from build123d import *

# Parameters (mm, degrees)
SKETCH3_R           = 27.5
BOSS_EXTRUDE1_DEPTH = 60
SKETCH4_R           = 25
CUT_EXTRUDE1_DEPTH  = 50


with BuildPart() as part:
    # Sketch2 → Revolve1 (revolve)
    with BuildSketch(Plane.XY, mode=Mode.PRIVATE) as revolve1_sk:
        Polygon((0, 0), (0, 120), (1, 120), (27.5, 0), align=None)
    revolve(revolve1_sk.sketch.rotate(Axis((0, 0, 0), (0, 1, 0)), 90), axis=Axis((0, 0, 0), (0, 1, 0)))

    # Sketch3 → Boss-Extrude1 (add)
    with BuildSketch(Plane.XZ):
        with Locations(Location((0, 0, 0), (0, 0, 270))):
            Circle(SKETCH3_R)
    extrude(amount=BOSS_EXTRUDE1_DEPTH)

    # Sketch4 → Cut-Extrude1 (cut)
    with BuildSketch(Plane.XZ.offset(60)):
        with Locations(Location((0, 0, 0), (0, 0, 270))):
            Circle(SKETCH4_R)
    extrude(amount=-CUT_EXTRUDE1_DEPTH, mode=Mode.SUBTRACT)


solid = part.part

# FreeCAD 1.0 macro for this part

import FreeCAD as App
import Part
import Sketcher
from FreeCAD import Vector


def add_polygon(sketch, points):
    """Adds a closed chain of lines whose ends are joined by coincident constraints."""
    first, n = sketch.GeometryCount, len(points)
    for a, b in zip(points, points[1:] + points[:1]):
        sketch.addGeometry(Part.LineSegment(App.Vector(*a, 0), App.Vector(*b, 0)), False)
    for i in range(n):
        sketch.addConstraint(Sketcher.Constraint("Coincident", first + i, 2, first + (i + 1) % n, 1))

doc = App.newDocument("Part")
params = doc.addObject("Spreadsheet::Sheet", "Params")
for row, (alias, value) in enumerate([
    ("sketch1_width", "1 mm"),
    ("sketch1_height", "120 mm"),
    ("sketch1_width2", "27.5 mm"),
    ("revolution_angle", "360 deg"),
    ("sketch2_diameter", "55 mm"),
    ("pad1_length", "60 mm"),
    ("sketch3_diameter", "50 mm"),
    ("pocket1_length", "50 mm"),
], start=1):
    params.set(f"A{row}", alias)
    params.set(f"B{row}", "=" + value)
    params.setAlias(f"B{row}", alias)

body = doc.addObject("PartDesign::Body", "Body")

# Sketch on XY plane
sketch1 = body.newObject("Sketcher::SketchObject", "Sketch")
sketch1.AttachmentSupport = (doc.getObject("XY_Plane"), [""])
sketch1.MapMode = "FlatFace"
add_polygon(sketch1, [(0, 120), (0, 0), (27.5, 0), (1, 120)])  # lines 0-3
sketch1.addConstraint([
    Sketcher.Constraint("Vertical", 0),
    Sketcher.Constraint("Horizontal", 1),
    Sketcher.Constraint("Horizontal", 3),
    Sketcher.Constraint("Coincident", 0, 2, -1, 1),
    Sketcher.Constraint("DistanceX", 3, 2, 3, 1, 1.0),
    Sketcher.Constraint("DistanceY", 0, 2, 0, 1, 120.0),
    Sketcher.Constraint("DistanceX", 1, 1, 1, 2, 27.5),
])
sketch1.setExpression("Constraints[8]", "Params.sketch1_width")
sketch1.setExpression("Constraints[9]", "Params.sketch1_height")
sketch1.setExpression("Constraints[10]", "Params.sketch1_width2")
revolution = body.newObject("PartDesign::Revolution", "Revolution")
revolution.Profile = sketch1
revolution.ReferenceAxis = (sketch1, ["V_Axis"])
revolution.setExpression("Angle", "Params.revolution_angle")

# Sketch on XZ plane
sketch2 = body.newObject("Sketcher::SketchObject", "Sketch001")
sketch2.AttachmentSupport = (doc.getObject("XZ_Plane"), [""])
sketch2.MapMode = "FlatFace"
sketch2.addGeometry(Part.Circle(Vector(0, 0, 0), Vector(0, 0, 1), 28), False)
sketch2.addConstraint([
    Sketcher.Constraint("Coincident", 0, 3, -1, 1),
    Sketcher.Constraint("Diameter", 0, 55.0),
])
sketch2.setExpression("Constraints[1]", "Params.sketch2_diameter")
pad1 = body.newObject("PartDesign::Pad", "Pad")
pad1.Profile = sketch2
pad1.setExpression("Length", "Params.pad1_length")

# Sketch on XZ plane
sketch3 = body.newObject("Sketcher::SketchObject", "Sketch002")
sketch3.AttachmentSupport = (doc.getObject("XZ_Plane"), [""])
sketch3.MapMode = "FlatFace"
sketch3.AttachmentOffset = App.Placement(Vector(0, 0, 60), App.Rotation())
sketch3.addGeometry(Part.Circle(Vector(0, 0, 0), Vector(0, 0, 1), 25), False)
sketch3.addConstraint([
    Sketcher.Constraint("Coincident", 0, 3, -1, 1),
    Sketcher.Constraint("Diameter", 0, 50.0),
])
sketch3.setExpression("Constraints[1]", "Params.sketch3_diameter")
pocket1 = body.newObject("PartDesign::Pocket", "Pocket")
pocket1.Profile = sketch3
pocket1.setExpression("Length", "Params.pocket1_length")

doc.recompute()
